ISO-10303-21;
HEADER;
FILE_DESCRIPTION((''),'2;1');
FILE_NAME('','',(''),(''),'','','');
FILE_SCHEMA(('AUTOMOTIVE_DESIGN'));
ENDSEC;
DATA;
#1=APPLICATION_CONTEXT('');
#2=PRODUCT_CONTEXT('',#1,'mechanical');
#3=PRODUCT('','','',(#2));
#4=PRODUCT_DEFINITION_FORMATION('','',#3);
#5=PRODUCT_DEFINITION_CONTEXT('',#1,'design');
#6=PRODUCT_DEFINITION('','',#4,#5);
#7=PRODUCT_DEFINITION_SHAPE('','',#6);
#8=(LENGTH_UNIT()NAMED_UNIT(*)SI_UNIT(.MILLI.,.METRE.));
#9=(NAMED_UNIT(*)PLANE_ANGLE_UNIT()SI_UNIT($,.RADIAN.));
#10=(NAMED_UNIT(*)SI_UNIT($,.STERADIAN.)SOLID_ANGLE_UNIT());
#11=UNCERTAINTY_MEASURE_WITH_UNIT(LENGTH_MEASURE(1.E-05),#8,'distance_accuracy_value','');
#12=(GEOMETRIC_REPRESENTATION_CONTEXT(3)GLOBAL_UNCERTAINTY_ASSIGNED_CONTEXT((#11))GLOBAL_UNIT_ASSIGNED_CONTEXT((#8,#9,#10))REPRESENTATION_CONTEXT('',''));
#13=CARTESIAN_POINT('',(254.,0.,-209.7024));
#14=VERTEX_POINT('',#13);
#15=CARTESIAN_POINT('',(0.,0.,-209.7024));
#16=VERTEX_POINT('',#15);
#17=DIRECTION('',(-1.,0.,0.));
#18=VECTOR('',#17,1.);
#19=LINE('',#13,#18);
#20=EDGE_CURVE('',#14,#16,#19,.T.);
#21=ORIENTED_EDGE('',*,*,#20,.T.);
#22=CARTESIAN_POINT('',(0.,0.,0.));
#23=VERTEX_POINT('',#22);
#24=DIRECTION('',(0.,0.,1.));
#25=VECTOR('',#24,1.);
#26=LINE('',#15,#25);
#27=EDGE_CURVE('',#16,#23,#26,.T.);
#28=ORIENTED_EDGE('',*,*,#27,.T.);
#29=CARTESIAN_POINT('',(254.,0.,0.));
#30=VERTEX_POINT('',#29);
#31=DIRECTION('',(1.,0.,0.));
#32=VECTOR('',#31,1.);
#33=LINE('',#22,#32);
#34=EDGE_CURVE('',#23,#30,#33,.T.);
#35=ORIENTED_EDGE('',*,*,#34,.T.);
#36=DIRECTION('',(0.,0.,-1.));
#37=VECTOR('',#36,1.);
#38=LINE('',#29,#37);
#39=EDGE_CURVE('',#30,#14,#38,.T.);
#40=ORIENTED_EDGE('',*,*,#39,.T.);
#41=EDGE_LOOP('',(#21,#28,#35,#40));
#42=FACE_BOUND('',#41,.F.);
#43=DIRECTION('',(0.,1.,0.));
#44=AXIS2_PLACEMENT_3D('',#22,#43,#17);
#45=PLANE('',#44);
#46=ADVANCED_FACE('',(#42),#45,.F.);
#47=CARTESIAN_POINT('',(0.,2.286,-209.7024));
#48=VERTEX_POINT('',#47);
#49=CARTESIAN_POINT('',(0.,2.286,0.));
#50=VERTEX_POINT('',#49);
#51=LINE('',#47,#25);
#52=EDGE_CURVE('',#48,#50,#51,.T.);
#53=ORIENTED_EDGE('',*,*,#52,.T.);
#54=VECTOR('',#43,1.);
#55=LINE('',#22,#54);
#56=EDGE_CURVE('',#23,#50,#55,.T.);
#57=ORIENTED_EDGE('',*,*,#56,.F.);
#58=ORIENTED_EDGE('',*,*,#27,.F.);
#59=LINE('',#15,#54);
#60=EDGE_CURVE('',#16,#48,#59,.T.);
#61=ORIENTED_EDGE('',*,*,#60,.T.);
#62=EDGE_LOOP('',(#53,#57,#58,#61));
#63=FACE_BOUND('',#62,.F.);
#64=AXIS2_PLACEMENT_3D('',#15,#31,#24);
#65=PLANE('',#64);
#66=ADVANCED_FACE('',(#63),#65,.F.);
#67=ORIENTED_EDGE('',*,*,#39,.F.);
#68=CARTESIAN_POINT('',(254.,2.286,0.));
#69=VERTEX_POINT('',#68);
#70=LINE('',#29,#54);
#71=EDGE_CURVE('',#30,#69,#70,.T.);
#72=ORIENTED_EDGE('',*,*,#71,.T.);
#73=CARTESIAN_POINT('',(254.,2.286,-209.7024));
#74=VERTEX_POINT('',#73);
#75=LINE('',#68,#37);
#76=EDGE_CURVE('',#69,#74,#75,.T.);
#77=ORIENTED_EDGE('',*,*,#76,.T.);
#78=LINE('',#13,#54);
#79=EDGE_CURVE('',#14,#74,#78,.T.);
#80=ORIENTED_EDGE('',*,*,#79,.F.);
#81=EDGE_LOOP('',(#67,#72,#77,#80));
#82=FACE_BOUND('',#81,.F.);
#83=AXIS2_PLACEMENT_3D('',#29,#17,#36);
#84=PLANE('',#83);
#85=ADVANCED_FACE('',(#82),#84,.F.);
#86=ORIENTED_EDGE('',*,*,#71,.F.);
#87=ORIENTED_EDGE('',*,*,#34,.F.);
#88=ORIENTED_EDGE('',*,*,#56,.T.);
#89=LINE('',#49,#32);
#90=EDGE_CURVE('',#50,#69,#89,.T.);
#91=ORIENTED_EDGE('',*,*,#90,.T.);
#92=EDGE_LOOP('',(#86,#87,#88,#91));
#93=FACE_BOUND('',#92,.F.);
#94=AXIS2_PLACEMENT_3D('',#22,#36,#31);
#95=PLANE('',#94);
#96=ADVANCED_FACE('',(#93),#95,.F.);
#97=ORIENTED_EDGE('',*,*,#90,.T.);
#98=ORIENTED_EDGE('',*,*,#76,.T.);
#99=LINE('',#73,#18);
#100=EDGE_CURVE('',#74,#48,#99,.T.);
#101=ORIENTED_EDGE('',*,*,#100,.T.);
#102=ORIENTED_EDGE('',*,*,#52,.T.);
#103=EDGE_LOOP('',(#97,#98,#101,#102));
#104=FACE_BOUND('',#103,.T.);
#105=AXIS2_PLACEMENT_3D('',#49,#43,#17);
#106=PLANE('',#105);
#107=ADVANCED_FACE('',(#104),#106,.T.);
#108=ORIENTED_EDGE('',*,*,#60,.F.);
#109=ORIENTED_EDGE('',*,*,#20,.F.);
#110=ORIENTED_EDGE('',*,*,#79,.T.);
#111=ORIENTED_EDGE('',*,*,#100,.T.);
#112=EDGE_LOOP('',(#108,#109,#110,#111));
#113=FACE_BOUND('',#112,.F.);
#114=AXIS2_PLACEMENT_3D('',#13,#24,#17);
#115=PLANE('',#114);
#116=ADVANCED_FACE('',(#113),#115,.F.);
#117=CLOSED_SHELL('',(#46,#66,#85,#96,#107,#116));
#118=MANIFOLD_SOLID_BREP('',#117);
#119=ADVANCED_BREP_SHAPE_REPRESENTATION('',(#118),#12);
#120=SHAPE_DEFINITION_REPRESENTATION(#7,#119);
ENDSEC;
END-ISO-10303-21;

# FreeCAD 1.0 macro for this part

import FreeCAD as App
import Part
import Sketcher

V = App.Vector
Q = App.Units.Quantity


def add_polygon(sketch, points):
    """Adds a closed chain of lines whose ends are joined by coincident constraints."""
    first, n = sketch.GeometryCount, len(points)
    for a, b in zip(points, points[1:] + points[:1]):
        sketch.addGeometry(Part.LineSegment(App.Vector(*a, 0), App.Vector(*b, 0)), False)
    for i in range(n):
        sketch.addConstraint(Sketcher.Constraint("Coincident", first + i, 2, first + (i + 1) % n, 1))

doc = App.newDocument("Part")
body = doc.addObject("PartDesign::Body", "Body")

sketch1 = body.newObject("Sketcher::SketchObject", "Sketch")
sketch1.AttachmentSupport = (doc.getObject("XZ_Plane"), [""])
sketch1.MapMode = "FlatFace"
add_polygon(sketch1, [(0, -210), (0, 0), (254, 0), (254, -210)])
sketch1.addConstraint(Sketcher.Constraint("Vertical", 0))
sketch1.addConstraint(Sketcher.Constraint("Horizontal", 1))
sketch1.addConstraint(Sketcher.Constraint("Vertical", 2))
sketch1.addConstraint(Sketcher.Constraint("Horizontal", 3))
sketch1.addConstraint(Sketcher.Constraint("Coincident", 0, 2, -1, 1))
sketch1.addConstraint(Sketcher.Constraint("DistanceX", 1, 1, 1, 2, Q("10 in")))
sketch1.addConstraint(Sketcher.Constraint("DistanceY", 0, 1, 0, 2, Q("8.256 in")))
pad1 = body.newObject("PartDesign::Pad", "Pad")
pad1.Profile = sketch1
pad1.Length = Q("0.09 in")
pad1.Reversed = True

doc.recompute()
